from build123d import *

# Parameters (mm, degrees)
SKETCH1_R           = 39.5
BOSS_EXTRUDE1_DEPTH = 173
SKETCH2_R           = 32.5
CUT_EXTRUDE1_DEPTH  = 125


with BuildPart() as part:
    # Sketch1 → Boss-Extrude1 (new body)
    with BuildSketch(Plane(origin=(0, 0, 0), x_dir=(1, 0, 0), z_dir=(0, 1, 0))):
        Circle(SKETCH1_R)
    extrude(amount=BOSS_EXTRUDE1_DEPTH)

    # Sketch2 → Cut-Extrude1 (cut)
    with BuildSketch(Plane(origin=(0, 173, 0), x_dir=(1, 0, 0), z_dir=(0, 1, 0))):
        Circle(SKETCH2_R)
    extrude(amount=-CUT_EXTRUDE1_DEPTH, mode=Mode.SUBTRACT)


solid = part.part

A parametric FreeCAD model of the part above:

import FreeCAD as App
import Part
import Sketcher

doc = App.newDocument("Part")
params = doc.addObject("Spreadsheet::Sheet", "Params")
for row, (alias, value) in enumerate([
    ("sketch1_diameter", "79 mm"),
    ("pad1_length", "173 mm"),
    ("sketch2_diameter", "65 mm"),
    ("pocket1_length", "125 mm"),
], start=1):
    params.set(f"A{row}", alias)
    params.set(f"B{row}", "=" + value)
    params.setAlias(f"B{row}", alias)

body = doc.addObject("PartDesign::Body", "Body")

# Sketch on XZ plane
sketch1 = body.newObject("Sketcher::SketchObject", "Sketch")
sketch1.AttachmentSupport = (doc.getObject("XZ_Plane"), [""])
sketch1.MapMode = "FlatFace"
sketch1.addGeometry(Part.Circle(App.Vector(0, 0, 0), App.Vector(0, 0, 1), 40), False)
sketch1.addConstraint([
    Sketcher.Constraint("Coincident", 0, 3, -1, 1),
    Sketcher.Constraint("Diameter", 0, 79.0),
])
sketch1.setExpression("Constraints[1]", "Params.sketch1_diameter")
pad1 = body.newObject("PartDesign::Pad", "Pad")
pad1.Profile = sketch1
pad1.setExpression("Length", "Params.pad1_length")
pad1.Reversed = True

# Sketch on XZ plane
sketch2 = body.newObject("Sketcher::SketchObject", "Sketch001")
sketch2.AttachmentSupport = (doc.getObject("XZ_Plane"), [""])
sketch2.MapMode = "FlatFace"
sketch2.AttachmentOffset = App.Placement(App.Vector(0, 0, -173), App.Rotation())
sketch2.addGeometry(Part.Circle(App.Vector(0, 0, 0), App.Vector(0, 0, 1), 32), False)
sketch2.addConstraint([
    Sketcher.Constraint("Coincident", 0, 3, -1, 1),
    Sketcher.Constraint("Diameter", 0, 65.0),
])
sketch2.setExpression("Constraints[1]", "Params.sketch2_diameter")
pocket1 = body.newObject("PartDesign::Pocket", "Pocket")
pocket1.Profile = sketch2
pocket1.setExpression("Length", "Params.pocket1_length")
pocket1.Reversed = True

doc.recompute()
